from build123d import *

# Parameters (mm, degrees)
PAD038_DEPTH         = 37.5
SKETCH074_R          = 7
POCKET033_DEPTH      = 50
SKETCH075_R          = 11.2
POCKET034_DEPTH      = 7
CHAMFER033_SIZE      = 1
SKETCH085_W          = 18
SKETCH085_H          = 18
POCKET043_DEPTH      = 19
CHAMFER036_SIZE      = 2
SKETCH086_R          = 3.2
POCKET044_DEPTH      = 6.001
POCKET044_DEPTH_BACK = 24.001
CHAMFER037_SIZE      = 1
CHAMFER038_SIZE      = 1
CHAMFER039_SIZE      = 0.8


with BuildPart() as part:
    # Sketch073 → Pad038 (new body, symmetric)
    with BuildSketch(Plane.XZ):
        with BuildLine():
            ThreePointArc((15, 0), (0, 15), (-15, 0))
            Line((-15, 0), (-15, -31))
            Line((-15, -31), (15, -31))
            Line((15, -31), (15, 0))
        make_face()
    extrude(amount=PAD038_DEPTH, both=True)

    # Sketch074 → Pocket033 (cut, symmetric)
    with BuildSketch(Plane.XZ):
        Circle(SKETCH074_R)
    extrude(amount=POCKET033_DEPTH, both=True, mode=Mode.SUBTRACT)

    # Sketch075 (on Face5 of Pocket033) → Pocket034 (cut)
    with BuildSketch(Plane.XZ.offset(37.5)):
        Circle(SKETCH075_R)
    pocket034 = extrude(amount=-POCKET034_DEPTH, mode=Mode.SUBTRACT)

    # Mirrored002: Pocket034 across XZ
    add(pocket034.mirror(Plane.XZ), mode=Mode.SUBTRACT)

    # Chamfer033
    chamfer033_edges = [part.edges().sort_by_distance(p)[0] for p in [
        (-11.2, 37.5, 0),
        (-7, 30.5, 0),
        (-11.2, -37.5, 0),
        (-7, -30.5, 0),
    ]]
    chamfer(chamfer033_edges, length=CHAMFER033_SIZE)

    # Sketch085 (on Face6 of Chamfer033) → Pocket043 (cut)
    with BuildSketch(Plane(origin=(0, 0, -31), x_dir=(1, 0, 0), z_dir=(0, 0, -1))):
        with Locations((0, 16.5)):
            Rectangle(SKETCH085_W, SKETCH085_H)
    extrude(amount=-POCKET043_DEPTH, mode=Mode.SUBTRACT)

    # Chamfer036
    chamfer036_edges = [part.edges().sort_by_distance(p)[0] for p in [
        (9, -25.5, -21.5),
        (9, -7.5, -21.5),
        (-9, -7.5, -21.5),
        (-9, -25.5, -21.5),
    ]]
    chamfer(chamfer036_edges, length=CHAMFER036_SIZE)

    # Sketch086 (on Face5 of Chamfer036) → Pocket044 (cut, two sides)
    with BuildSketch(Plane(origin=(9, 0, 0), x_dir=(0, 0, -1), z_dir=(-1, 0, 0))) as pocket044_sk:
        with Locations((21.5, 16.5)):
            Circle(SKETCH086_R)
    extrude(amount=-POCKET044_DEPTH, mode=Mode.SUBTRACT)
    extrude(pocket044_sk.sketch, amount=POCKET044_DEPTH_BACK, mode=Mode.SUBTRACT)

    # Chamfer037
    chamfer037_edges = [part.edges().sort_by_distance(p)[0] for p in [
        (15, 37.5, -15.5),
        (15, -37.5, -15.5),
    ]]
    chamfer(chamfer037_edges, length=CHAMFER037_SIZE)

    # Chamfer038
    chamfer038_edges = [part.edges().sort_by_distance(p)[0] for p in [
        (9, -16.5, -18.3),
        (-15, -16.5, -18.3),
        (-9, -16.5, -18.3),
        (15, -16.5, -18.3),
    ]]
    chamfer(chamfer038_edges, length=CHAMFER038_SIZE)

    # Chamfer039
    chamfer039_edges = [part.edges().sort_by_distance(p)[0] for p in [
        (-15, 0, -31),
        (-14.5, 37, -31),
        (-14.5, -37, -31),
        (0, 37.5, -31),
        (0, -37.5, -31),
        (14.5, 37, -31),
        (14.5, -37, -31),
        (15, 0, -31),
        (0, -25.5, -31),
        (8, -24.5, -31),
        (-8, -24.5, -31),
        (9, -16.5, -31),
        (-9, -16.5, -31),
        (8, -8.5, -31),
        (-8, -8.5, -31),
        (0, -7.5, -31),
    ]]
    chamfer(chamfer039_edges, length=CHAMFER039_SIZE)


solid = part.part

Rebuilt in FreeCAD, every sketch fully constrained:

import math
import FreeCAD as App
import Part
import Sketcher
from FreeCAD import Vector
Q = App.Units.Quantity


def edges_at(feature, points):
    """Names of the edges that pass closest to the given points."""
    edges = feature.Shape.Edges
    near = lambda p: min(range(len(edges)), key=lambda i: edges[i].distToShape(Part.Vertex(*p))[0])
    return sorted({f"Edge{near(p) + 1}" for p in points})


def add_polygon(sketch, points):
    """Adds a closed chain of lines whose ends are joined by coincident constraints."""
    first, n = sketch.GeometryCount, len(points)
    for a, b in zip(points, points[1:] + points[:1]):
        sketch.addGeometry(Part.LineSegment(App.Vector(*a, 0), App.Vector(*b, 0)), False)
    for i in range(n):
        sketch.addConstraint(Sketcher.Constraint("Coincident", first + i, 2, first + (i + 1) % n, 1))

doc = App.newDocument("Part")
params = doc.addObject("Spreadsheet::Sheet", "Params")
for row, (alias, value) in enumerate([
    ("sketch1_radius", "15 mm"),
    ("sketch1_height", "31 mm"),
    ("pad1_length", "75 mm"),
    ("sketch2_diameter", "14 mm"),
    ("pocket1_length", "100 mm"),
    ("sketch3_diameter", "22.4 mm"),
    ("pocket2_length", "7 mm"),
    ("chamfer_size", "1 mm"),
    ("sketch4_width", "18 mm"),
    ("pocket3_length", "19 mm"),
    ("chamfer2_size", "2 mm"),
    ("sketch5_diameter", "6.4 mm"),
    ("chamfer3_size", "1 mm"),
    ("chamfer4_size", "1 mm"),
    ("chamfer5_size", "0.8 mm"),
], start=1):
    params.set(f"A{row}", alias)
    params.set(f"B{row}", "=" + value)
    params.setAlias(f"B{row}", alias)

body = doc.addObject("PartDesign::Body", "Body")

# Sketch on XZ plane
sketch1 = body.newObject("Sketcher::SketchObject", "Sketch")
sketch1.AttachmentSupport = (doc.getObject("XZ_Plane"), [""])
sketch1.MapMode = "FlatFace"
sketch1.addGeometry([
    Part.ArcOfCircle(Part.Circle(Vector(0, 0, 0), Vector(0, 0, 1), 15), math.radians(0), math.radians(180)),
    Part.LineSegment(Vector(-15, 0, 0), Vector(-15, -31, 0)),
    Part.LineSegment(Vector(-15, -31, 0), Vector(15, -31, 0)),
    Part.LineSegment(Vector(15, -31, 0), Vector(15, 0, 0)),
], False)
sketch1.addConstraint([
    Sketcher.Constraint("Tangent", 0, 2, 1, 1),
    Sketcher.Constraint("Coincident", 1, 2, 2, 1),
    Sketcher.Constraint("Coincident", 2, 2, 3, 1),
    Sketcher.Constraint("Tangent", 3, 2, 0, 1),
    Sketcher.Constraint("Vertical", 1),
    Sketcher.Constraint("Horizontal", 2),
    Sketcher.Constraint("Vertical", 3),
    Sketcher.Constraint("Coincident", 0, 3, -1, 1),
    Sketcher.Constraint("Radius", 0, Q("15 mm")),
    Sketcher.Constraint("DistanceY", 1, 2, 1, 1, Q("31 mm")),
])
sketch1.setExpression("Constraints[8]", "Params.sketch1_radius")
sketch1.setExpression("Constraints[9]", "Params.sketch1_height")
pad1 = body.newObject("PartDesign::Pad", "Pad")
pad1.Profile = sketch1
pad1.setExpression("Length", "Params.pad1_length")
pad1.Midplane = True

# Sketch on XZ plane
sketch2 = body.newObject("Sketcher::SketchObject", "Sketch001")
sketch2.AttachmentSupport = (doc.getObject("XZ_Plane"), [""])
sketch2.MapMode = "FlatFace"
sketch2.addGeometry(Part.Circle(Vector(0, 0, 0), Vector(0, 0, 1), 7), False)
sketch2.addConstraint([
    Sketcher.Constraint("Coincident", 0, 3, -1, 1),
    Sketcher.Constraint("Diameter", 0, Q("14 mm")),
])
sketch2.setExpression("Constraints[1]", "Params.sketch2_diameter")
pocket1 = body.newObject("PartDesign::Pocket", "Pocket")
pocket1.Profile = sketch2
pocket1.setExpression("Length", "Params.pocket1_length")
pocket1.Midplane = True

# Sketch on XZ plane
sketch3 = body.newObject("Sketcher::SketchObject", "Sketch002")
sketch3.AttachmentSupport = (doc.getObject("XZ_Plane"), [""])
sketch3.MapMode = "FlatFace"
sketch3.AttachmentOffset = App.Placement(Vector(0, 0, 37.5), App.Rotation())
sketch3.addGeometry(Part.Circle(Vector(0, 0, 0), Vector(0, 0, 1), 11.2), False)
sketch3.addConstraint([
    Sketcher.Constraint("Coincident", 0, 3, -1, 1),
    Sketcher.Constraint("Diameter", 0, Q("22.4 mm")),
])
sketch3.setExpression("Constraints[1]", "Params.sketch3_diameter")
pocket2 = body.newObject("PartDesign::Pocket", "Pocket001")
pocket2.Profile = sketch3
pocket2.setExpression("Length", "Params.pocket2_length")
doc.recompute()

mirrored = body.newObject("PartDesign::Mirrored", "Mirrored")
mirrored.Originals = [pocket2]
mirrored.MirrorPlane = (doc.getObject("XZ_Plane"), [""])
body.Tip = mirrored
doc.recompute()

chamfer = body.newObject("PartDesign::Chamfer", "Chamfer")
chamfer.Base = (mirrored, edges_at(mirrored, [
    (-11.2, 37.5, 0),
    (-7, 30.5, 0),
    (-11.2, -37.5, 0),
    (-7, -30.5, 0),
]))
chamfer.setExpression("Size", "Params.chamfer_size")

# Sketch on XY plane
sketch4 = body.newObject("Sketcher::SketchObject", "Sketch003")
sketch4.AttachmentSupport = (doc.getObject("XY_Plane"), [""])
sketch4.MapMode = "FlatFace"
sketch4.AttachmentOffset = App.Placement(Vector(0, 0, -31), App.Rotation())
add_polygon(sketch4, [(-9, -25.5), (-9, -7.5), (9, -7.5), (9, -25.5)])  # lines 0-3
sketch4.addConstraint([
    Sketcher.Constraint("Vertical", 0),
    Sketcher.Constraint("Horizontal", 1),
    Sketcher.Constraint("Vertical", 2),
    Sketcher.Constraint("Horizontal", 3),
    Sketcher.Constraint("Equal", 3, 0),
    Sketcher.Constraint("DistanceX", 1, 1, 1, 2, Q("18 mm")),
    Sketcher.Constraint("DistanceX", 0, 2, -1, 1, Q("9 mm")),
    Sketcher.Constraint("DistanceY", 0, 2, -1, 1, Q("7.5 mm")),
])
sketch4.setExpression("Constraints[9]", "Params.sketch4_width")
pocket3 = body.newObject("PartDesign::Pocket", "Pocket002")
pocket3.Profile = sketch4
pocket3.setExpression("Length", "Params.pocket3_length")
pocket3.Reversed = True
doc.recompute()

chamfer2 = body.newObject("PartDesign::Chamfer", "Chamfer001")
chamfer2.Base = (pocket3, edges_at(pocket3, [
    (9, -25.5, -21.5),
    (9, -7.5, -21.5),
    (-9, -7.5, -21.5),
    (-9, -25.5, -21.5),
]))
chamfer2.setExpression("Size", "Params.chamfer2_size")

# Sketch on YZ plane
sketch5 = body.newObject("Sketcher::SketchObject", "Sketch004")
sketch5.AttachmentSupport = (doc.getObject("YZ_Plane"), [""])
sketch5.MapMode = "FlatFace"
sketch5.AttachmentOffset = App.Placement(Vector(0, 0, 9), App.Rotation())
sketch5.addGeometry(Part.Circle(Vector(-16.5, -21.5, 0), Vector(0, 0, 1), 3.2), False)
sketch5.addConstraint([
    Sketcher.Constraint("Diameter", 0, Q("6.4 mm")),
    Sketcher.Constraint("DistanceX", 0, 3, -1, 1, Q("16.5 mm")),
    Sketcher.Constraint("DistanceY", 0, 3, -1, 1, Q("21.5 mm")),
])
sketch5.setExpression("Constraints[0]", "Params.sketch5_diameter")
pocket4 = body.newObject("PartDesign::Pocket", "Pocket003")
pocket4.Profile = sketch5
pocket4.Type = "ThroughAll"
pocket4.Midplane = True
doc.recompute()

chamfer3 = body.newObject("PartDesign::Chamfer", "Chamfer002")
chamfer3.Base = (pocket4, edges_at(pocket4, [(15, 37.5, -15.5), (15, -37.5, -15.5)]))
chamfer3.setExpression("Size", "Params.chamfer3_size")
doc.recompute()

chamfer4 = body.newObject("PartDesign::Chamfer", "Chamfer003")
chamfer4.Base = (chamfer3, edges_at(chamfer3, [
    (9, -16.5, -18.3),
    (-15, -16.5, -18.3),
    (-9, -16.5, -18.3),
    (15, -16.5, -18.3),
]))
chamfer4.setExpression("Size", "Params.chamfer4_size")
doc.recompute()

chamfer5 = body.newObject("PartDesign::Chamfer", "Chamfer004")
chamfer5.Base = (chamfer4, edges_at(chamfer4, [
    (-15, 0, -31),
    (-14.5, 37, -31),
    (-14.5, -37, -31),
    (0, 37.5, -31),
    (0, -37.5, -31),
    (14.5, 37, -31),
    (14.5, -37, -31),
    (15, 0, -31),
    (0, -25.5, -31),
    (8, -24.5, -31),
    (-8, -24.5, -31),
    (9, -16.5, -31),
    (-9, -16.5, -31),
    (8, -8.5, -31),
    (-8, -8.5, -31),
    (0, -7.5, -31),
]))
chamfer5.setExpression("Size", "Params.chamfer5_size")

doc.recompute()
